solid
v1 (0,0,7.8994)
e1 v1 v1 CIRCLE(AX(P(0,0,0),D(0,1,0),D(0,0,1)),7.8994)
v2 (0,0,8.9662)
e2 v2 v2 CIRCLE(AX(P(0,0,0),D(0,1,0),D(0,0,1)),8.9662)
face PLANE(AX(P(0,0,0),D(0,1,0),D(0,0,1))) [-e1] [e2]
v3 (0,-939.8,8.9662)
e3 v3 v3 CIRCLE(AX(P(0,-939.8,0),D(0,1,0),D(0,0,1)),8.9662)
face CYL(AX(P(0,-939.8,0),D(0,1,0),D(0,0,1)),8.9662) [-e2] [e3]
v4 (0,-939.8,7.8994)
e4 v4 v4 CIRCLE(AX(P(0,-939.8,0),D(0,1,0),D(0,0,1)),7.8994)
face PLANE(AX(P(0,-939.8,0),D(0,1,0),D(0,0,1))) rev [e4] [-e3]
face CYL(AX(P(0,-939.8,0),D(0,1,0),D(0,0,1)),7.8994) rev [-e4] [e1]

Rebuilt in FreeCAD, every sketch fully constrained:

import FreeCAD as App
import Part
import Sketcher

V = App.Vector
Q = App.Units.Quantity

doc = App.newDocument("Part")
body = doc.addObject("PartDesign::Body", "Body")

sketch1 = body.newObject("Sketcher::SketchObject", "Sketch")
sketch1.AttachmentSupport = (doc.getObject("XZ_Plane"), [""])
sketch1.MapMode = "FlatFace"
sketch1.addGeometry(Part.Circle(V(0, 0, 0), V(0, 0, 1), 9), False)
sketch1.addGeometry(Part.Circle(V(0, 0, 0), V(0, 0, 1), 8), False)
sketch1.addConstraint(Sketcher.Constraint("Coincident", 0, 3, -1, 1))
sketch1.addConstraint(Sketcher.Constraint("Coincident", 1, 3, -1, 1))
sketch1.addConstraint(Sketcher.Constraint("Diameter", 0, Q("0.706 in")))
sketch1.addConstraint(Sketcher.Constraint("Diameter", 1, Q("0.622 in")))
pad1 = body.newObject("PartDesign::Pad", "Pad")
pad1.Profile = sketch1
pad1.Length = Q("37 in")

doc.recompute()
